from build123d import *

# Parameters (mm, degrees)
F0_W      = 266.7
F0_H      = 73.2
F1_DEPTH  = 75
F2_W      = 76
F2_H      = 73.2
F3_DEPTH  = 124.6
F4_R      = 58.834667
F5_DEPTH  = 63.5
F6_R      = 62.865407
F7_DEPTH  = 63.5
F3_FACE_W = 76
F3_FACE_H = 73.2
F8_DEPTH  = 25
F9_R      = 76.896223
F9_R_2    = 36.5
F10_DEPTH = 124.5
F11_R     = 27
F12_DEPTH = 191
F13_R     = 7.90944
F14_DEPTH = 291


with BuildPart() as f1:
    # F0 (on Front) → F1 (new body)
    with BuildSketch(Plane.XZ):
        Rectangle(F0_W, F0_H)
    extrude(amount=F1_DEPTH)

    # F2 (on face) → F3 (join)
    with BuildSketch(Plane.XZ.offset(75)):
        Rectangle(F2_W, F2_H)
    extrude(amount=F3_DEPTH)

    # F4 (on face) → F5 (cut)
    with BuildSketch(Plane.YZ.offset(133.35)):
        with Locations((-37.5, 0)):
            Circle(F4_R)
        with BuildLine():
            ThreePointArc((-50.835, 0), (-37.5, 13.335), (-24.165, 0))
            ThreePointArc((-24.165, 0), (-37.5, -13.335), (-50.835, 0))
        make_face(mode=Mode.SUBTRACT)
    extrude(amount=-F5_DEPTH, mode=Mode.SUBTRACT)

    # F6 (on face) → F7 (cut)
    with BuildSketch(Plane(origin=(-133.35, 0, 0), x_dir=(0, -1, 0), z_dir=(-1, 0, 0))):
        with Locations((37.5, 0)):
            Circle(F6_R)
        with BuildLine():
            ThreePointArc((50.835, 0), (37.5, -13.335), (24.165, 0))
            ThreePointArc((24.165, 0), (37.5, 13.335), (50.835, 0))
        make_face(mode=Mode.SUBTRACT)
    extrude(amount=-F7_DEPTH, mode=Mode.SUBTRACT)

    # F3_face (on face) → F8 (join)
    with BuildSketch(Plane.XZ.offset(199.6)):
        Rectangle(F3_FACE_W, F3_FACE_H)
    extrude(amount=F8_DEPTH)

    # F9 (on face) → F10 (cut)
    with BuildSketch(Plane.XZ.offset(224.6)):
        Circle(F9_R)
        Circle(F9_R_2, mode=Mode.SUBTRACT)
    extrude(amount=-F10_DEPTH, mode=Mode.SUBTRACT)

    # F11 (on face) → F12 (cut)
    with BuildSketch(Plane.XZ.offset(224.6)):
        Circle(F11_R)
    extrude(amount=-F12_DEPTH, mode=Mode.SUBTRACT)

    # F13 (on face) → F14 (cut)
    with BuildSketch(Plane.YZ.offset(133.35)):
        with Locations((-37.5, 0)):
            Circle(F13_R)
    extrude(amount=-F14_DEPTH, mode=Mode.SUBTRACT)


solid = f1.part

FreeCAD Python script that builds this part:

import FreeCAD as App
import Part
import Sketcher
Q = App.Units.Quantity


def add_polygon(sketch, points):
    """Adds a closed chain of lines whose ends are joined by coincident constraints."""
    first, n = sketch.GeometryCount, len(points)
    for a, b in zip(points, points[1:] + points[:1]):
        sketch.addGeometry(Part.LineSegment(App.Vector(*a, 0), App.Vector(*b, 0)), False)
    for i in range(n):
        sketch.addConstraint(Sketcher.Constraint("Coincident", first + i, 2, first + (i + 1) % n, 1))

doc = App.newDocument("Part")
body = doc.addObject("PartDesign::Body", "Body")

# Sketch on XZ plane
sketch1 = body.newObject("Sketcher::SketchObject", "Sketch")
sketch1.AttachmentSupport = (doc.getObject("XZ_Plane"), [""])
sketch1.MapMode = "FlatFace"
add_polygon(sketch1, [(-133, 37), (-133, -37), (133, -37), (133, 37)])  # lines 0-3
sketch1.addConstraint([
    Sketcher.Constraint("Vertical", 0),
    Sketcher.Constraint("Horizontal", 1),
    Sketcher.Constraint("Vertical", 2),
    Sketcher.Constraint("Horizontal", 3),
    Sketcher.Constraint("Symmetric", 0, 2, 2, 2, -1, 1),
    Sketcher.Constraint("DistanceX", 1, 1, 1, 2, Q("266.7 mm")),
    Sketcher.Constraint("DistanceY", 0, 2, 0, 1, Q("73.2 mm")),
])
pad1 = body.newObject("PartDesign::Pad", "Pad")
pad1.Profile = sketch1
pad1.Length = 75

# Sketch on XZ plane
sketch2 = body.newObject("Sketcher::SketchObject", "Sketch001")
sketch2.AttachmentSupport = (doc.getObject("XZ_Plane"), [""])
sketch2.MapMode = "FlatFace"
sketch2.AttachmentOffset = App.Placement(App.Vector(0, 0, 75), App.Rotation())
add_polygon(sketch2, [(-38, 37), (-38, -37), (38, -37), (38, 37)])  # lines 0-3
sketch2.addConstraint([
    Sketcher.Constraint("Vertical", 0),
    Sketcher.Constraint("Horizontal", 1),
    Sketcher.Constraint("Vertical", 2),
    Sketcher.Constraint("Horizontal", 3),
    Sketcher.Constraint("Symmetric", 0, 2, 2, 2, -1, 1),
    Sketcher.Constraint("DistanceX", 1, 1, 1, 2, Q("76 mm")),
    Sketcher.Constraint("DistanceY", 0, 2, 0, 1, Q("73.2 mm")),
])
pad2 = body.newObject("PartDesign::Pad", "Pad001")
pad2.Profile = sketch2
pad2.Length = 124.6

# Sketch on YZ plane
sketch3 = body.newObject("Sketcher::SketchObject", "Sketch002")
sketch3.AttachmentSupport = (doc.getObject("YZ_Plane"), [""])
sketch3.MapMode = "FlatFace"
sketch3.AttachmentOffset = App.Placement(App.Vector(0, 0, 133.35), App.Rotation())
sketch3.addGeometry([
    Part.Circle(App.Vector(-38, 0, 0), App.Vector(0, 0, 1), 59),
    Part.Circle(App.Vector(-38, 0, 0), App.Vector(0, 0, 1), 13),
], False)
sketch3.addConstraint([
    Sketcher.Constraint("Coincident", 1, 3, 0, 3),
    Sketcher.Constraint("PointOnObject", 0, 3, -1),
    Sketcher.Constraint("Diameter", 1, Q("26.67 mm")),
    Sketcher.Constraint("DistanceX", 0, 3, -1, 1, Q("37.5 mm")),
    Sketcher.Constraint("Diameter", 0, Q("117.669334 mm")),
])
pocket1 = body.newObject("PartDesign::Pocket", "Pocket")
pocket1.Profile = sketch3
pocket1.Length = 63.5

# Sketch on YZ plane
sketch4 = body.newObject("Sketcher::SketchObject", "Sketch003")
sketch4.AttachmentSupport = (doc.getObject("YZ_Plane"), [""])
sketch4.MapMode = "FlatFace"
sketch4.AttachmentOffset = App.Placement(App.Vector(0, 0, -133.35), App.Rotation())
sketch4.addGeometry([
    Part.Circle(App.Vector(-38, 0, 0), App.Vector(0, 0, 1), 63),
    Part.Circle(App.Vector(-38, 0, 0), App.Vector(0, 0, 1), 13),
], False)
sketch4.addConstraint([
    Sketcher.Constraint("Coincident", 1, 3, 0, 3),
    Sketcher.Constraint("PointOnObject", 0, 3, -1),
    Sketcher.Constraint("Diameter", 1, Q("26.67 mm")),
    Sketcher.Constraint("DistanceX", 0, 3, -1, 1, Q("37.5 mm")),
    Sketcher.Constraint("Diameter", 0, Q("125.730814 mm")),
])
pocket2 = body.newObject("PartDesign::Pocket", "Pocket001")
pocket2.Profile = sketch4
pocket2.Length = 63.5
pocket2.Reversed = True

# Sketch on XZ plane
sketch5 = body.newObject("Sketcher::SketchObject", "Sketch004")
sketch5.AttachmentSupport = (doc.getObject("XZ_Plane"), [""])
sketch5.MapMode = "FlatFace"
sketch5.AttachmentOffset = App.Placement(App.Vector(0, 0, 199.6), App.Rotation())
add_polygon(sketch5, [(-38, 37), (-38, -37), (38, -37), (38, 37)])  # lines 0-3
sketch5.addConstraint([
    Sketcher.Constraint("Vertical", 0),
    Sketcher.Constraint("Horizontal", 1),
    Sketcher.Constraint("Vertical", 2),
    Sketcher.Constraint("Horizontal", 3),
    Sketcher.Constraint("Symmetric", 0, 2, 2, 2, -1, 1),
    Sketcher.Constraint("DistanceX", 1, 1, 1, 2, Q("76 mm")),
    Sketcher.Constraint("DistanceY", 0, 2, 0, 1, Q("73.2 mm")),
])
pad3 = body.newObject("PartDesign::Pad", "Pad002")
pad3.Profile = sketch5
pad3.Length = 25

# Sketch on XZ plane
sketch6 = body.newObject("Sketcher::SketchObject", "Sketch005")
sketch6.AttachmentSupport = (doc.getObject("XZ_Plane"), [""])
sketch6.MapMode = "FlatFace"
sketch6.AttachmentOffset = App.Placement(App.Vector(0, 0, 224.6), App.Rotation())
sketch6.addGeometry([
    Part.Circle(App.Vector(0, 0, 0), App.Vector(0, 0, 1), 77),
    Part.Circle(App.Vector(0, 0, 0), App.Vector(0, 0, 1), 36),
], False)
sketch6.addConstraint([
    Sketcher.Constraint("Coincident", 0, 3, -1, 1),
    Sketcher.Constraint("Coincident", 1, 3, -1, 1),
    Sketcher.Constraint("Diameter", 1, Q("73 mm")),
    Sketcher.Constraint("Diameter", 0, Q("153.792446 mm")),
])
pocket3 = body.newObject("PartDesign::Pocket", "Pocket002")
pocket3.Profile = sketch6
pocket3.Length = 124.5

# Sketch on XZ plane
sketch7 = body.newObject("Sketcher::SketchObject", "Sketch006")
sketch7.AttachmentSupport = (doc.getObject("XZ_Plane"), [""])
sketch7.MapMode = "FlatFace"
sketch7.AttachmentOffset = App.Placement(App.Vector(0, 0, 224.6), App.Rotation())
sketch7.addGeometry(Part.Circle(App.Vector(0, 0, 0), App.Vector(0, 0, 1), 27), False)
sketch7.addConstraint([
    Sketcher.Constraint("Coincident", 0, 3, -1, 1),
    Sketcher.Constraint("Diameter", 0, Q("54 mm")),
])
pocket4 = body.newObject("PartDesign::Pocket", "Pocket003")
pocket4.Profile = sketch7
pocket4.Length = 191

# Sketch on YZ plane
sketch8 = body.newObject("Sketcher::SketchObject", "Sketch007")
sketch8.AttachmentSupport = (doc.getObject("YZ_Plane"), [""])
sketch8.MapMode = "FlatFace"
sketch8.AttachmentOffset = App.Placement(App.Vector(0, 0, 133.35), App.Rotation())
sketch8.addGeometry(Part.Circle(App.Vector(-38, 0, 0), App.Vector(0, 0, 1), 8), False)
sketch8.addConstraint([
    Sketcher.Constraint("PointOnObject", 0, 3, -1),
    Sketcher.Constraint("DistanceX", 0, 3, -1, 1, Q("37.5 mm")),
    Sketcher.Constraint("Diameter", 0, Q("15.81888 mm")),
])
pocket5 = body.newObject("PartDesign::Pocket", "Pocket004")
pocket5.Profile = sketch8
pocket5.Length = 291

doc.recompute()
